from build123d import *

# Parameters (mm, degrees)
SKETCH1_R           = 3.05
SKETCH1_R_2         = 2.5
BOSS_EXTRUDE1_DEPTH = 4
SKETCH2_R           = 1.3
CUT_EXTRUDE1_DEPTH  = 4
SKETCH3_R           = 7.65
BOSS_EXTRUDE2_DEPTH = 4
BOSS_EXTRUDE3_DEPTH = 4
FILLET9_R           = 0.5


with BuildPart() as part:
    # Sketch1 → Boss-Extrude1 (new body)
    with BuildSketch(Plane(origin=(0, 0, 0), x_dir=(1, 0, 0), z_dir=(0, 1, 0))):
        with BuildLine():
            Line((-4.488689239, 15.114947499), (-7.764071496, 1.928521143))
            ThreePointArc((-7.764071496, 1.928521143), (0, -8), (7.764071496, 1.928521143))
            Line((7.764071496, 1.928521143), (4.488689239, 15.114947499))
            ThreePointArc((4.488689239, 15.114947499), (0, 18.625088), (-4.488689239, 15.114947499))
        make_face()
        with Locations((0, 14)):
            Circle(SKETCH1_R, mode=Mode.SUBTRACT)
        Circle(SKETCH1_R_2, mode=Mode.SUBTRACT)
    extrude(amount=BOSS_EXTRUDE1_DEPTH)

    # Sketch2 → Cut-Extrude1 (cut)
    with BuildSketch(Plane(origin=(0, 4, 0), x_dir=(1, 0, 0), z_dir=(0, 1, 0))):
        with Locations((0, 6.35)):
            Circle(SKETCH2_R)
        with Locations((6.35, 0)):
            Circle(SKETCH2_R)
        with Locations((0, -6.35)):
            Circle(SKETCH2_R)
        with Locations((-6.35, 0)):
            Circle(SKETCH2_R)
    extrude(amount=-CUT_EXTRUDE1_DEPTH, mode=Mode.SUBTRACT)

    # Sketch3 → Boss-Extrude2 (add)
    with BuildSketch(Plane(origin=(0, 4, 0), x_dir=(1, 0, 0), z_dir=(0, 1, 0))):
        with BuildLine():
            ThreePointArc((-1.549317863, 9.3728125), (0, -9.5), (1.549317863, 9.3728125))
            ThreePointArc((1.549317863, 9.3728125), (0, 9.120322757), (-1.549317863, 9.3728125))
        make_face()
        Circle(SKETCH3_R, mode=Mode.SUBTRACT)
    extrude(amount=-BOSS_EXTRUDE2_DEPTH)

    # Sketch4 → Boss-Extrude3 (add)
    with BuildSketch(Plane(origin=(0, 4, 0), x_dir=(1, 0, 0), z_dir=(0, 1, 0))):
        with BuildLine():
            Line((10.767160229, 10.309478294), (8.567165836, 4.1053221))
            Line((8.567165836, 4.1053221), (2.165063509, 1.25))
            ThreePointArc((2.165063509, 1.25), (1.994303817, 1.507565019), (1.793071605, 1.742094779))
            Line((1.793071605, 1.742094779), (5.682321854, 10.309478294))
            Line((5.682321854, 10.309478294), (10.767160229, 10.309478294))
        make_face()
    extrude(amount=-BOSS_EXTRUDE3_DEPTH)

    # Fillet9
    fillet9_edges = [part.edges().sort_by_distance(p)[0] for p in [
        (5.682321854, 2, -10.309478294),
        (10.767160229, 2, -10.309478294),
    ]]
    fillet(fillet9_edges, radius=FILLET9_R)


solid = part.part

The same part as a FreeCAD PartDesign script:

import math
import FreeCAD as App
import Part
import Sketcher
Q = App.Units.Quantity


def edges_at(feature, points):
    """Names of the edges that pass closest to the given points."""
    edges = feature.Shape.Edges
    near = lambda p: min(range(len(edges)), key=lambda i: edges[i].distToShape(Part.Vertex(*p))[0])
    return sorted({f"Edge{near(p) + 1}" for p in points})

doc = App.newDocument("Part")
body = doc.addObject("PartDesign::Body", "Body")

# Sketch on XZ plane
sketch1 = body.newObject("Sketcher::SketchObject", "Sketch")
sketch1.AttachmentSupport = (doc.getObject("XZ_Plane"), [""])
sketch1.MapMode = "FlatFace"
sketch1.addGeometry(Part.LineSegment(App.Vector(-4.5, -15.1, 0), App.Vector(-7.8, -1.9, 0)), False)
sketch1.addGeometry(Part.ArcOfCircle(Part.Circle(App.Vector(0, 0, 0), App.Vector(0, 0, 1), 8), math.radians(-14), math.radians(194)), False)
sketch1.addGeometry(Part.LineSegment(App.Vector(7.8, -1.9, 0), App.Vector(4.5, -15.1, 0)), False)
sketch1.addGeometry(Part.ArcOfCircle(Part.Circle(App.Vector(0, -14, 0), App.Vector(0, 0, 1), 4.6), math.radians(-166), math.radians(-14)), False)
sketch1.addGeometry(Part.Circle(App.Vector(0, 0, 0), App.Vector(0, 0, 1), 2.5), False)
sketch1.addGeometry(Part.Circle(App.Vector(0, -14, 0), App.Vector(0, 0, 1), 3), False)
sketch1.addConstraint(Sketcher.Constraint("Tangent", 0, 2, 1, 2))
sketch1.addConstraint(Sketcher.Constraint("Tangent", 1, 1, 2, 1))
sketch1.addConstraint(Sketcher.Constraint("Tangent", 2, 2, 3, 2))
sketch1.addConstraint(Sketcher.Constraint("Tangent", 3, 1, 0, 1))
sketch1.addConstraint(Sketcher.Constraint("Coincident", 1, 3, -1, 1))
sketch1.addConstraint(Sketcher.Constraint("Coincident", 4, 3, -1, 1))
sketch1.addConstraint(Sketcher.Constraint("Coincident", 5, 3, 3, 3))
sketch1.addConstraint(Sketcher.Constraint("PointOnObject", 3, 3, -2))
sketch1.addConstraint(Sketcher.Constraint("Diameter", 4, Q("5 mm")))
sketch1.addConstraint(Sketcher.Constraint("Radius", 1, Q("8 mm")))
sketch1.addConstraint(Sketcher.Constraint("Diameter", 5, Q("6.1 mm")))
sketch1.addConstraint(Sketcher.Constraint("DistanceY", 3, 3, -1, 1, Q("14 mm")))
sketch1.addConstraint(Sketcher.Constraint("Radius", 3, Q("4.625088 mm")))
pad1 = body.newObject("PartDesign::Pad", "Pad")
pad1.Profile = sketch1
pad1.Length = 4
pad1.Reversed = True

# Sketch on XZ plane
sketch2 = body.newObject("Sketcher::SketchObject", "Sketch001")
sketch2.AttachmentSupport = (doc.getObject("XZ_Plane"), [""])
sketch2.MapMode = "FlatFace"
sketch2.AttachmentOffset = App.Placement(App.Vector(0, 0, -4), App.Rotation())
sketch2.addGeometry(Part.Circle(App.Vector(0, -6.3, 0), App.Vector(0, 0, 1), 1.3), False)
sketch2.addGeometry(Part.Circle(App.Vector(6.3, 0, 0), App.Vector(0, 0, 1), 1.3), False)
sketch2.addGeometry(Part.Circle(App.Vector(0, 6.3, 0), App.Vector(0, 0, 1), 1.3), False)
sketch2.addGeometry(Part.Circle(App.Vector(-6.3, 0, 0), App.Vector(0, 0, 1), 1.3), False)
sketch2.addConstraint(Sketcher.Constraint("Equal", 0, 1))
sketch2.addConstraint(Sketcher.Constraint("Equal", 1, 2))
sketch2.addConstraint(Sketcher.Constraint("Equal", 2, 3))
sketch2.addConstraint(Sketcher.Constraint("Symmetric", 0, 3, 2, 3, -1, 1))
sketch2.addConstraint(Sketcher.Constraint("Symmetric", 1, 3, 3, 3, -1, 1))
sketch2.addConstraint(Sketcher.Constraint("PointOnObject", 0, 3, -2))
sketch2.addConstraint(Sketcher.Constraint("PointOnObject", 1, 3, -1))
sketch2.addConstraint(Sketcher.Constraint("Diameter", 0, Q("2.6 mm")))
sketch2.addConstraint(Sketcher.Constraint("DistanceY", 0, 3, 2, 3, Q("12.7 mm")))
sketch2.addConstraint(Sketcher.Constraint("DistanceX", 3, 3, 1, 3, Q("12.7 mm")))
pocket1 = body.newObject("PartDesign::Pocket", "Pocket")
pocket1.Profile = sketch2
pocket1.Length = 4
pocket1.Reversed = True

# Sketch on XZ plane
sketch3 = body.newObject("Sketcher::SketchObject", "Sketch002")
sketch3.AttachmentSupport = (doc.getObject("XZ_Plane"), [""])
sketch3.MapMode = "FlatFace"
sketch3.AttachmentOffset = App.Placement(App.Vector(0, 0, -4), App.Rotation())
sketch3.addGeometry(Part.ArcOfCircle(Part.Circle(App.Vector(0, 0, 0), App.Vector(0, 0, 1), 9.5), math.radians(-81), math.radians(261)), False)
sketch3.addGeometry(Part.ArcOfCircle(Part.Circle(App.Vector(0, -14, 0), App.Vector(0, 0, 1), 4.9), math.radians(71), math.radians(109)), False)
sketch3.addGeometry(Part.Circle(App.Vector(0, 0, 0), App.Vector(0, 0, 1), 7.7), False)
sketch3.addConstraint(Sketcher.Constraint("Coincident", 0, 1, 1, 1))
sketch3.addConstraint(Sketcher.Constraint("Coincident", 1, 2, 0, 2))
sketch3.addConstraint(Sketcher.Constraint("Coincident", 0, 3, -1, 1))
sketch3.addConstraint(Sketcher.Constraint("Coincident", 2, 3, -1, 1))
sketch3.addConstraint(Sketcher.Constraint("PointOnObject", 1, 3, -2))
sketch3.addConstraint(Sketcher.Constraint("Diameter", 2, Q("15.3 mm")))
sketch3.addConstraint(Sketcher.Constraint("Radius", 0, Q("9.5 mm")))
sketch3.addConstraint(Sketcher.Constraint("DistanceY", 1, 3, -1, 1, Q("14 mm")))
sketch3.addConstraint(Sketcher.Constraint("Radius", 1, Q("4.879677 mm")))
pad2 = body.newObject("PartDesign::Pad", "Pad001")
pad2.Profile = sketch3
pad2.Length = 4

# Sketch on XZ plane
sketch4 = body.newObject("Sketcher::SketchObject", "Sketch003")
sketch4.AttachmentSupport = (doc.getObject("XZ_Plane"), [""])
sketch4.MapMode = "FlatFace"
sketch4.AttachmentOffset = App.Placement(App.Vector(0, 0, -4), App.Rotation())
sketch4.addGeometry(Part.LineSegment(App.Vector(8.6, -4.1, 0), App.Vector(10.8, -10.3, 0)), False)
sketch4.addGeometry(Part.LineSegment(App.Vector(10.8, -10.3, 0), App.Vector(5.7, -10.3, 0)), False)
sketch4.addGeometry(Part.LineSegment(App.Vector(5.7, -10.3, 0), App.Vector(1.8, -1.7, 0)), False)
sketch4.addGeometry(Part.ArcOfCircle(Part.Circle(App.Vector(0, 0, 0), App.Vector(0, 0, 1), 2.5), math.radians(-44.17), math.radians(-30)), False)
sketch4.addGeometry(Part.LineSegment(App.Vector(2.2, -1.2, 0), App.Vector(8.6, -4.1, 0)), False)
sketch4.addConstraint(Sketcher.Constraint("Coincident", 0, 2, 1, 1))
sketch4.addConstraint(Sketcher.Constraint("Coincident", 1, 2, 2, 1))
sketch4.addConstraint(Sketcher.Constraint("Coincident", 2, 2, 3, 1))
sketch4.addConstraint(Sketcher.Constraint("Coincident", 3, 2, 4, 1))
sketch4.addConstraint(Sketcher.Constraint("Coincident", 4, 2, 0, 1))
sketch4.addConstraint(Sketcher.Constraint("Horizontal", 1))
sketch4.addConstraint(Sketcher.Constraint("Coincident", 3, 3, -1, 1))
sketch4.addConstraint(Sketcher.Constraint("Radius", 3, Q("2.5 mm")))
sketch4.addConstraint(Sketcher.Constraint("DistanceY", 3, 2, -1, 1, Q("1.25 mm")))
sketch4.addConstraint(Sketcher.Constraint("DistanceX", 1, 2, 1, 1, Q("5.084838 mm")))
sketch4.addConstraint(Sketcher.Constraint("Distance", 0, Q("6.582669 mm")))
sketch4.addConstraint(Sketcher.Constraint("DistanceX", -1, 1, 0, 2, Q("10.76716 mm")))
sketch4.addConstraint(Sketcher.Constraint("DistanceY", 0, 2, -1, 1, Q("10.309478 mm")))
sketch4.addConstraint(Sketcher.Constraint("DistanceX", -1, 1, 2, 2, Q("1.793072 mm")))
sketch4.addConstraint(Sketcher.Constraint("Distance", 4, Q("7.009977 mm")))
pad3 = body.newObject("PartDesign::Pad", "Pad002")
pad3.Profile = sketch4
pad3.Length = 4
doc.recompute()

fillet = body.newObject("PartDesign::Fillet", "Fillet")
fillet.Base = (pad3, edges_at(pad3, [(5.682, 2, -10.309), (10.767, 2, -10.309)]))
fillet.Radius = 0.5

doc.recompute()
